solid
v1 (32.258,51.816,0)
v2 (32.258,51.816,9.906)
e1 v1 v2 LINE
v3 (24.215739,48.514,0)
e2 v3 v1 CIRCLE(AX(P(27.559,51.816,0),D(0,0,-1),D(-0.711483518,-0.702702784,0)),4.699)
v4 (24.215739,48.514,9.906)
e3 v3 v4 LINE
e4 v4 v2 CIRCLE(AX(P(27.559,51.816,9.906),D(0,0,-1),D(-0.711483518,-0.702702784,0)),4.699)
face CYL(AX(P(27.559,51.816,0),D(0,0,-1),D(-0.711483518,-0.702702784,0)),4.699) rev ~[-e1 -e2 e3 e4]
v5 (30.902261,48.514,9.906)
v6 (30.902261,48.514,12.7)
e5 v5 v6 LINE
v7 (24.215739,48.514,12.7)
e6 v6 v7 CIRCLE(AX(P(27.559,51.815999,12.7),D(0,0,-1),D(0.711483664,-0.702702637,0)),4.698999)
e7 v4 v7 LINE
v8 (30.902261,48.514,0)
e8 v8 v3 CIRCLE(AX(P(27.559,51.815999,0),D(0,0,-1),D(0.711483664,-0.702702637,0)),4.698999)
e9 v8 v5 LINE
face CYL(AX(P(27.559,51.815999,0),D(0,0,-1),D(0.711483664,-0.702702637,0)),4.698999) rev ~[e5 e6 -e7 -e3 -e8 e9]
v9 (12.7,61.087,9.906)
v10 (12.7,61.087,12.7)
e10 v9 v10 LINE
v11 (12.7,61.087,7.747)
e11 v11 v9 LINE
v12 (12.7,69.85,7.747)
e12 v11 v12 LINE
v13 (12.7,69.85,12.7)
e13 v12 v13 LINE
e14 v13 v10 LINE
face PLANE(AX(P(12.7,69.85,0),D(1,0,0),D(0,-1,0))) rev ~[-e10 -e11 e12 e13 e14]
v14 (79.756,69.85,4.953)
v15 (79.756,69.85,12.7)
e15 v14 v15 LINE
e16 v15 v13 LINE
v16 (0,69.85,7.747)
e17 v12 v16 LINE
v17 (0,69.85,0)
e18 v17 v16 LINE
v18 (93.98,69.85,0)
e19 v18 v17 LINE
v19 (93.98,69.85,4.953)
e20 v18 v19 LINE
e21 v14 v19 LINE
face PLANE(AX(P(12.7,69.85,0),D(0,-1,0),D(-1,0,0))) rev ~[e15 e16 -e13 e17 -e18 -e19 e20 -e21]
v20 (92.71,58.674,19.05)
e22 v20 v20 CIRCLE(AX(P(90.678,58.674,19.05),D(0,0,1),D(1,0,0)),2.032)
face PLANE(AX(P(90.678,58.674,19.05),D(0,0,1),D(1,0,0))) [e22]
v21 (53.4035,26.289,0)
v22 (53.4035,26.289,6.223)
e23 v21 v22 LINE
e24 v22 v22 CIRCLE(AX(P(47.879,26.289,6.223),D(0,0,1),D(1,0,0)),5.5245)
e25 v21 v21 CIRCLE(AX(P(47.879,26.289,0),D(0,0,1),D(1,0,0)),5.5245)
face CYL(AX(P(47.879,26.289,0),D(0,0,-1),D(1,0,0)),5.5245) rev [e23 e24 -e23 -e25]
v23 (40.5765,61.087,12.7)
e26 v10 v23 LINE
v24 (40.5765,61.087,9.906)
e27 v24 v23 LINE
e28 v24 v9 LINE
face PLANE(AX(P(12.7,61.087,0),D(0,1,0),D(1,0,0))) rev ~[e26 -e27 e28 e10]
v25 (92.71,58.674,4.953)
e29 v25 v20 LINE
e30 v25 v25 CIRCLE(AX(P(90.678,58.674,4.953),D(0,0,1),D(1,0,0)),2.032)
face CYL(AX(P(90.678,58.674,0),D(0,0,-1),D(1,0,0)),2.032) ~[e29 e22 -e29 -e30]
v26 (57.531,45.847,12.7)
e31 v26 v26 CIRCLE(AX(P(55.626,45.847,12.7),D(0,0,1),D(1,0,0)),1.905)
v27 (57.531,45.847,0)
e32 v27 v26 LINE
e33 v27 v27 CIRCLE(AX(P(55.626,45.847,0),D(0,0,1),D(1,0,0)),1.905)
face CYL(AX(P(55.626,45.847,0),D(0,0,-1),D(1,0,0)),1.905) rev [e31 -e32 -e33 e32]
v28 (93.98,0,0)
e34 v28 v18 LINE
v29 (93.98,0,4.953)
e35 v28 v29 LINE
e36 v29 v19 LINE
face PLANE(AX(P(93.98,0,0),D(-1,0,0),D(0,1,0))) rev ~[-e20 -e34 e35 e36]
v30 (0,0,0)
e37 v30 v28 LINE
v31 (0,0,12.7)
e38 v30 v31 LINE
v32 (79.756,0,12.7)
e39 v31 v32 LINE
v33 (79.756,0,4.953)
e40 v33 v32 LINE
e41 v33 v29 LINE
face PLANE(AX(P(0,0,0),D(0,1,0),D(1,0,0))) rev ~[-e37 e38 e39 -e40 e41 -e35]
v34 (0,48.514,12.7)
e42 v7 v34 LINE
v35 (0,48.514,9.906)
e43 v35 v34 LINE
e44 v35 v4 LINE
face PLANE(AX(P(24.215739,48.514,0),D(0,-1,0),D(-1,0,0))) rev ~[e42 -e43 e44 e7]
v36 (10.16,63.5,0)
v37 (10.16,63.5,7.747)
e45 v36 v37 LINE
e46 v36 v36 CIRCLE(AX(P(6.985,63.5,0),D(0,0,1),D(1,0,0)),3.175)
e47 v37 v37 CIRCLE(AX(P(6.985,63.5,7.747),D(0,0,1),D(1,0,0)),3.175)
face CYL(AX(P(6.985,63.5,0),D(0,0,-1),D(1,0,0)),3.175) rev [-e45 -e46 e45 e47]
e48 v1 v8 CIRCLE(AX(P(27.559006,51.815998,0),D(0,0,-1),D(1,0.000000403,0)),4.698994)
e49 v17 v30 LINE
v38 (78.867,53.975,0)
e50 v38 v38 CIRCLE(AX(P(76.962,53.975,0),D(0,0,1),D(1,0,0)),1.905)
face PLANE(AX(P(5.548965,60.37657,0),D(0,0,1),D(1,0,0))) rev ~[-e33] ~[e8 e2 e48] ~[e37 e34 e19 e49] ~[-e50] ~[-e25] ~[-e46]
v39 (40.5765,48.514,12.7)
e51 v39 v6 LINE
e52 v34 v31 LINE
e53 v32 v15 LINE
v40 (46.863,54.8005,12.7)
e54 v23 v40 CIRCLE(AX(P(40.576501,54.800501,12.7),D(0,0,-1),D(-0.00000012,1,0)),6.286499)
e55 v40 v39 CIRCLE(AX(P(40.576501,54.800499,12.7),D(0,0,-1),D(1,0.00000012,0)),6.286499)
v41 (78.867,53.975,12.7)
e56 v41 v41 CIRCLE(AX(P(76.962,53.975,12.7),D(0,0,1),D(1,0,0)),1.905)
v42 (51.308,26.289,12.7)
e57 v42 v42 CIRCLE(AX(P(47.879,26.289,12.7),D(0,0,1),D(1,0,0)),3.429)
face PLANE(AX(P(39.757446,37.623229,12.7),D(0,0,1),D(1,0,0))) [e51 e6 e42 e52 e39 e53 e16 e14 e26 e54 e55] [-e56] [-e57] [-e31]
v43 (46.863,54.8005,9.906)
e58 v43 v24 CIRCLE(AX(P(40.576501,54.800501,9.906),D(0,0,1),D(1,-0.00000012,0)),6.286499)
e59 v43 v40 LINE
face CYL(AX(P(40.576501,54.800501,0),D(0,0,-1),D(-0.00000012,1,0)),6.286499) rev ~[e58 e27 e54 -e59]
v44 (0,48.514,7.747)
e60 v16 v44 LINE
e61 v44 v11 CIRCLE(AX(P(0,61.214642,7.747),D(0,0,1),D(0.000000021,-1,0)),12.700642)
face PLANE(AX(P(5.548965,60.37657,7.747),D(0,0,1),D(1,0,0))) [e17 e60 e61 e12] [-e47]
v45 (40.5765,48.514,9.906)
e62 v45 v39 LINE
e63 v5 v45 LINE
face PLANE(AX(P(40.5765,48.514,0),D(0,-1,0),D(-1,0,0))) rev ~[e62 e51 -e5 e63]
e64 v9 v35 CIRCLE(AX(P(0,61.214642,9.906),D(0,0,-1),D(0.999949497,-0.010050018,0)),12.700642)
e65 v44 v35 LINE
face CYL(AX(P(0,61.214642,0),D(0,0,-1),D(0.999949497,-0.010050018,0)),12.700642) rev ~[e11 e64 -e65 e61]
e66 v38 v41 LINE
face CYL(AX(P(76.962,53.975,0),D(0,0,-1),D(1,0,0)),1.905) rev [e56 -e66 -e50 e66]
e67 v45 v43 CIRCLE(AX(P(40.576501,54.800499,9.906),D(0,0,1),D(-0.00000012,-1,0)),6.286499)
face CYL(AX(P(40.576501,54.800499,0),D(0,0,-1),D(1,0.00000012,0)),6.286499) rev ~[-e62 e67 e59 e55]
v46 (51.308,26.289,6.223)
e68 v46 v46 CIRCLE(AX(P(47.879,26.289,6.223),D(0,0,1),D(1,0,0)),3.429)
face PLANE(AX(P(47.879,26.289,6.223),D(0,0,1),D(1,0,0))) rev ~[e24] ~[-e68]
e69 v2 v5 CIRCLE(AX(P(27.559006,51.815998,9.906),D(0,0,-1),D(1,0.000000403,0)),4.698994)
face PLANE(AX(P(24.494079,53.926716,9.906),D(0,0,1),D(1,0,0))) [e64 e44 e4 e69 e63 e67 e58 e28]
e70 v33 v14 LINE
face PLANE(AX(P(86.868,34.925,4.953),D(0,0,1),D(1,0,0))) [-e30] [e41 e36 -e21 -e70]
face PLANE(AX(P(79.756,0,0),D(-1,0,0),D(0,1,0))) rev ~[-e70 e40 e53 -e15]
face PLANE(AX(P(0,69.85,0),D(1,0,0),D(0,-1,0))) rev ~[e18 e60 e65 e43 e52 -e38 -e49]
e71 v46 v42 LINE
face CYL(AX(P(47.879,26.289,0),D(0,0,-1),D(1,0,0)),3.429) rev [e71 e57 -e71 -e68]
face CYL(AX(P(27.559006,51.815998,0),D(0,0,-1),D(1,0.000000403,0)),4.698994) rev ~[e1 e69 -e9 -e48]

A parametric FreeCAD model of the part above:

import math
import FreeCAD as App
import Part
import Sketcher

V = App.Vector
Q = App.Units.Quantity

doc = App.newDocument("Part")
body = doc.addObject("PartDesign::Body", "Body")

sketch1 = body.newObject("Sketcher::SketchObject", "Sketch")
sketch1.AttachmentSupport = (doc.getObject("XY_Plane"), [""])
sketch1.MapMode = "FlatFace"
sketch1.addGeometry([
    Part.LineSegment(V(79.8, 69.8, 0), V(79.8, 0, 0)),
    Part.LineSegment(V(79.8, 0, 0), V(94, 0, 0)),
    Part.LineSegment(V(94, 0, 0), V(94, 69.8, 0)),
    Part.LineSegment(V(94, 69.8, 0), V(79.8, 69.8, 0)),
    Part.Circle(V(90.7, 58.7, 0), V(0, 0, 1), 2),
], False)
sketch1.addConstraint([
    Sketcher.Constraint("Coincident", 0, 2, 1, 1),
    Sketcher.Constraint("Coincident", 1, 2, 2, 1),
    Sketcher.Constraint("Coincident", 2, 2, 3, 1),
    Sketcher.Constraint("Coincident", 3, 2, 0, 1),
    Sketcher.Constraint("Vertical", 0),
    Sketcher.Constraint("Horizontal", 1),
    Sketcher.Constraint("Vertical", 2),
    Sketcher.Constraint("Horizontal", 3),
    Sketcher.Constraint("PointOnObject", 0, 2, -1),
    Sketcher.Constraint("Diameter", 4, Q("0.16 in")),
    Sketcher.Constraint("DistanceX", 1, 1, 1, 2, Q("0.56 in")),
    Sketcher.Constraint("DistanceY", 0, 2, 0, 1, Q("2.75 in")),
    Sketcher.Constraint("DistanceX", -1, 1, 1, 2, Q("3.7 in")),
    Sketcher.Constraint("DistanceX", -1, 1, 4, 3, Q("3.57 in")),
    Sketcher.Constraint("DistanceY", -1, 1, 4, 3, Q("2.31 in")),
])
pad1 = body.newObject("PartDesign::Pad", "Pad")
pad1.Profile = sketch1
pad1.Length = Q("0.195 in")

sketch2 = body.newObject("Sketcher::SketchObject", "Sketch001")
sketch2.AttachmentSupport = (doc.getObject("XY_Plane"), [""])
sketch2.MapMode = "FlatFace"
sketch2.addGeometry([
    Part.LineSegment(V(0, 48.5, 0), V(0, 0, 0)),
    Part.LineSegment(V(0, 0, 0), V(79.8, 0, 0)),
    Part.LineSegment(V(79.8, 0, 0), V(79.8, 69.8, 0)),
    Part.LineSegment(V(79.8, 69.8, 0), V(12.7, 69.8, 0)),
    Part.LineSegment(V(12.7, 69.8, 0), V(12.7, 61.1, 0)),
    Part.LineSegment(V(12.7, 61.1, 0), V(40.6, 61.1, 0)),
    Part.ArcOfCircle(Part.Circle(V(40.6, 54.8, 0), V(0, 0, 1), 6.3), math.radians(0), math.radians(90)),
    Part.ArcOfCircle(Part.Circle(V(40.6, 54.8, 0), V(0, 0, 1), 6.3), math.radians(-90), math.radians(0)),
    Part.LineSegment(V(40.6, 48.5, 0), V(30.9, 48.5, 0)),
    Part.ArcOfCircle(Part.Circle(V(27.6, 51.8, 0), V(0, 0, 1), 4.7), math.radians(-135), math.radians(-45)),
    Part.LineSegment(V(24.2, 48.5, 0), V(0, 48.5, 0)),
    Part.Circle(V(47.9, 26.3, 0), V(0, 0, 1), 3.4),
    Part.Circle(V(55.6, 45.8, 0), V(0, 0, 1), 1.9),
    Part.Circle(V(77, 54, 0), V(0, 0, 1), 1.9),
], False)
sketch2.addConstraint([
    Sketcher.Constraint("Coincident", 0, 2, 1, 1),
    Sketcher.Constraint("Coincident", 1, 2, 2, 1),
    Sketcher.Constraint("Coincident", 2, 2, 3, 1),
    Sketcher.Constraint("Coincident", 3, 2, 4, 1),
    Sketcher.Constraint("Coincident", 4, 2, 5, 1),
    Sketcher.Constraint("Tangent", 5, 2, 6, 2),
    Sketcher.Constraint("Tangent", 6, 1, 7, 2),
    Sketcher.Constraint("Tangent", 7, 1, 8, 1),
    Sketcher.Constraint("Coincident", 8, 2, 9, 2),
    Sketcher.Constraint("Coincident", 9, 1, 10, 1),
    Sketcher.Constraint("Coincident", 10, 2, 0, 1),
    Sketcher.Constraint("Vertical", 0),
    Sketcher.Constraint("Horizontal", 1),
    Sketcher.Constraint("Vertical", 2),
    Sketcher.Constraint("Horizontal", 3),
    Sketcher.Constraint("Vertical", 4),
    Sketcher.Constraint("Horizontal", 5),
    Sketcher.Constraint("Horizontal", 8),
    Sketcher.Constraint("Horizontal", 10),
    Sketcher.Constraint("Coincident", 0, 2, -1, 1),
    Sketcher.Constraint("Equal", 6, 7),
    Sketcher.Constraint("Equal", 12, 13),
    Sketcher.Constraint("Horizontal", 7, 3, 6, 1),
    Sketcher.Constraint("Horizontal", 8, 2, 9, 1),
    Sketcher.Constraint("Diameter", 11, Q("0.27 in")),
    Sketcher.Constraint("Diameter", 12, Q("0.15 in")),
    Sketcher.Constraint("Radius", 9, Q("0.185 in")),
    Sketcher.Constraint("DistanceX", 1, 1, 1, 2, Q("3.14 in")),
    Sketcher.Constraint("DistanceX", 3, 2, 3, 1, Q("2.64 in")),
    Sketcher.Constraint("DistanceY", 0, 2, 0, 1, Q("1.91 in")),
    Sketcher.Constraint("DistanceY", 2, 1, 2, 2, Q("2.75 in")),
    Sketcher.Constraint("Radius", 6, Q("0.2475 in")),
    Sketcher.Constraint("DistanceX", 9, 3, 11, 3, Q("0.8 in")),
    Sketcher.Constraint("DistanceY", 12, 3, 4, 2, Q("0.6 in")),
    Sketcher.Constraint("DistanceY", -1, 1, 9, 3, Q("2.04 in")),
    Sketcher.Constraint("DistanceX", -1, 1, 12, 3, Q("2.19 in")),
    Sketcher.Constraint("DistanceX", -1, 1, 13, 3, Q("3.03 in")),
    Sketcher.Constraint("DistanceY", 11, 3, 12, 3, Q("0.77 in")),
    Sketcher.Constraint("DistanceY", 12, 3, 13, 3, Q("0.32 in")),
    Sketcher.Constraint("DistanceX", 9, 3, 6, 1, Q("0.76 in")),
    Sketcher.Constraint("DistanceX", 5, 1, 5, 2, Q("1.0975 in")),
])
pad2 = body.newObject("PartDesign::Pad", "Pad001")
pad2.Profile = sketch2
pad2.Length = Q("0.5 in")

sketch3 = body.newObject("Sketcher::SketchObject", "Sketch002")
sketch3.AttachmentSupport = (doc.getObject("XY_Plane"), [""])
sketch3.MapMode = "FlatFace"
sketch3.addGeometry([
    Part.ArcOfCircle(Part.Circle(V(0, 61.2, 0), V(0, 0, 1), 12.7), math.radians(-90), math.radians(-1)),
    Part.LineSegment(V(0, 48.5, 0), V(24.2, 48.5, 0)),
    Part.ArcOfCircle(Part.Circle(V(27.6, 51.8, 0), V(0, 0, 1), 4.7), math.radians(0), math.radians(225)),
    Part.ArcOfCircle(Part.Circle(V(27.6, 51.8, 0), V(0, 0, 1), 4.7), math.radians(-45), math.radians(0)),
    Part.LineSegment(V(30.9, 48.5, 0), V(40.6, 48.5, 0)),
    Part.ArcOfCircle(Part.Circle(V(40.6, 54.8, 0), V(0, 0, 1), 6.3), math.radians(-90), math.radians(0)),
    Part.ArcOfCircle(Part.Circle(V(40.6, 54.8, 0), V(0, 0, 1), 6.3), math.radians(0), math.radians(90)),
    Part.LineSegment(V(40.6, 61.1, 0), V(12.7, 61.1, 0)),
], False)
sketch3.addConstraint([
    Sketcher.Constraint("Tangent", 0, 1, 1, 1),
    Sketcher.Constraint("Coincident", 1, 2, 2, 2),
    Sketcher.Constraint("Tangent", 2, 1, 3, 2),
    Sketcher.Constraint("Coincident", 3, 1, 4, 1),
    Sketcher.Constraint("Tangent", 4, 2, 5, 1),
    Sketcher.Constraint("Tangent", 5, 2, 6, 1),
    Sketcher.Constraint("Tangent", 6, 2, 7, 1),
    Sketcher.Constraint("Coincident", 7, 2, 0, 2),
    Sketcher.Constraint("Horizontal", 1),
    Sketcher.Constraint("Horizontal", 4),
    Sketcher.Constraint("Horizontal", 7),
    Sketcher.Constraint("Equal", 5, 6),
    Sketcher.Constraint("PointOnObject", 0, 3, -2),
    Sketcher.Constraint("Horizontal", 3, 3, 2, 1),
    Sketcher.Constraint("Horizontal", 1, 2, 3, 1),
    Sketcher.Constraint("Horizontal", 6, 3, 5, 2),
    Sketcher.Constraint("Radius", 2, Q("0.185 in")),
    Sketcher.Constraint("DistanceX", -1, 1, 7, 2, Q("0.5 in")),
    Sketcher.Constraint("Radius", 5, Q("0.2475 in")),
    Sketcher.Constraint("DistanceY", -1, 1, 2, 3, Q("2.04 in")),
    Sketcher.Constraint("DistanceY", -1, 1, 0, 1, Q("1.91 in")),
    Sketcher.Constraint("DistanceX", -1, 1, 2, 1, Q("1.27 in")),
    Sketcher.Constraint("DistanceX", 7, 2, 7, 1, Q("1.0975 in")),
    Sketcher.Constraint("Radius", 3, Q("4.698994 mm")),
])
pad3 = body.newObject("PartDesign::Pad", "Pad002")
pad3.Profile = sketch3
pad3.Length = Q("0.39 in")

sketch4 = body.newObject("Sketcher::SketchObject", "Sketch003")
sketch4.AttachmentSupport = (doc.getObject("XY_Plane"), [""])
sketch4.MapMode = "FlatFace"
sketch4.addGeometry([
    Part.LineSegment(V(0, 69.8, 0), V(0, 48.5, 0)),
    Part.ArcOfCircle(Part.Circle(V(0, 61.2, 0), V(0, 0, 1), 12.7), math.radians(-90), math.radians(-1)),
    Part.LineSegment(V(12.7, 61.1, 0), V(12.7, 69.8, 0)),
    Part.LineSegment(V(12.7, 69.8, 0), V(0, 69.8, 0)),
    Part.Circle(V(7, 63.5, 0), V(0, 0, 1), 3.2),
], False)
sketch4.addConstraint([
    Sketcher.Constraint("Coincident", 0, 2, 1, 1),
    Sketcher.Constraint("Coincident", 1, 2, 2, 1),
    Sketcher.Constraint("Coincident", 2, 2, 3, 1),
    Sketcher.Constraint("Coincident", 3, 2, 0, 1),
    Sketcher.Constraint("Vertical", 0),
    Sketcher.Constraint("Vertical", 2),
    Sketcher.Constraint("Horizontal", 3),
    Sketcher.Constraint("PointOnObject", 1, 3, -2),
    Sketcher.Constraint("PointOnObject", 0, 2, -2),
    Sketcher.Constraint("Diameter", 4, Q("0.25 in")),
    Sketcher.Constraint("DistanceX", 3, 2, 3, 1, Q("0.5 in")),
    Sketcher.Constraint("DistanceY", 0, 2, 0, 1, Q("0.84 in")),
    Sketcher.Constraint("DistanceY", -1, 1, 4, 3, Q("2.5 in")),
    Sketcher.Constraint("DistanceY", 2, 1, 2, 2, Q("0.345 in")),
    Sketcher.Constraint("DistanceY", -1, 1, 0, 2, Q("1.91 in")),
    Sketcher.Constraint("DistanceX", -1, 1, 4, 3, Q("0.275 in")),
])
pad4 = body.newObject("PartDesign::Pad", "Pad003")
pad4.Profile = sketch4
pad4.Length = Q("0.305 in")

sketch5 = body.newObject("Sketcher::SketchObject", "Sketch004")
sketch5.AttachmentSupport = (doc.getObject("XY_Plane"), [""])
sketch5.MapMode = "FlatFace"
sketch5.addGeometry(Part.Circle(V(90.7, 58.7, 0), V(0, 0, 1), 2), False)
sketch5.addConstraint([
    Sketcher.Constraint("Diameter", 0, Q("0.16 in")),
    Sketcher.Constraint("DistanceX", -1, 1, 0, 3, Q("3.57 in")),
    Sketcher.Constraint("DistanceY", -1, 1, 0, 3, Q("2.31 in")),
])
pad5 = body.newObject("PartDesign::Pad", "Pad004")
pad5.Profile = sketch5
pad5.Length = Q("0.75 in")

sketch6 = body.newObject("Sketcher::SketchObject", "Sketch005")
sketch6.AttachmentSupport = (doc.getObject("XY_Plane"), [""])
sketch6.MapMode = "FlatFace"
sketch6.addGeometry([
    Part.Circle(V(47.9, 26.3, 0), V(0, 0, 1), 5.5),
    Part.Circle(V(47.9, 26.3, 0), V(0, 0, 1), 3.4),
], False)
sketch6.addConstraint([
    Sketcher.Constraint("Coincident", 1, 3, 0, 3),
    Sketcher.Constraint("Diameter", 1, Q("0.27 in")),
    Sketcher.Constraint("Diameter", 0, Q("0.435 in")),
    Sketcher.Constraint("DistanceX", -1, 1, 0, 3, Q("1.885 in")),
    Sketcher.Constraint("DistanceY", -1, 1, 0, 3, Q("1.035 in")),
])
pocket1 = body.newObject("PartDesign::Pocket", "Pocket")
pocket1.Profile = sketch6
pocket1.Length = Q("0.245 in")
pocket1.Reversed = True

doc.recompute()
